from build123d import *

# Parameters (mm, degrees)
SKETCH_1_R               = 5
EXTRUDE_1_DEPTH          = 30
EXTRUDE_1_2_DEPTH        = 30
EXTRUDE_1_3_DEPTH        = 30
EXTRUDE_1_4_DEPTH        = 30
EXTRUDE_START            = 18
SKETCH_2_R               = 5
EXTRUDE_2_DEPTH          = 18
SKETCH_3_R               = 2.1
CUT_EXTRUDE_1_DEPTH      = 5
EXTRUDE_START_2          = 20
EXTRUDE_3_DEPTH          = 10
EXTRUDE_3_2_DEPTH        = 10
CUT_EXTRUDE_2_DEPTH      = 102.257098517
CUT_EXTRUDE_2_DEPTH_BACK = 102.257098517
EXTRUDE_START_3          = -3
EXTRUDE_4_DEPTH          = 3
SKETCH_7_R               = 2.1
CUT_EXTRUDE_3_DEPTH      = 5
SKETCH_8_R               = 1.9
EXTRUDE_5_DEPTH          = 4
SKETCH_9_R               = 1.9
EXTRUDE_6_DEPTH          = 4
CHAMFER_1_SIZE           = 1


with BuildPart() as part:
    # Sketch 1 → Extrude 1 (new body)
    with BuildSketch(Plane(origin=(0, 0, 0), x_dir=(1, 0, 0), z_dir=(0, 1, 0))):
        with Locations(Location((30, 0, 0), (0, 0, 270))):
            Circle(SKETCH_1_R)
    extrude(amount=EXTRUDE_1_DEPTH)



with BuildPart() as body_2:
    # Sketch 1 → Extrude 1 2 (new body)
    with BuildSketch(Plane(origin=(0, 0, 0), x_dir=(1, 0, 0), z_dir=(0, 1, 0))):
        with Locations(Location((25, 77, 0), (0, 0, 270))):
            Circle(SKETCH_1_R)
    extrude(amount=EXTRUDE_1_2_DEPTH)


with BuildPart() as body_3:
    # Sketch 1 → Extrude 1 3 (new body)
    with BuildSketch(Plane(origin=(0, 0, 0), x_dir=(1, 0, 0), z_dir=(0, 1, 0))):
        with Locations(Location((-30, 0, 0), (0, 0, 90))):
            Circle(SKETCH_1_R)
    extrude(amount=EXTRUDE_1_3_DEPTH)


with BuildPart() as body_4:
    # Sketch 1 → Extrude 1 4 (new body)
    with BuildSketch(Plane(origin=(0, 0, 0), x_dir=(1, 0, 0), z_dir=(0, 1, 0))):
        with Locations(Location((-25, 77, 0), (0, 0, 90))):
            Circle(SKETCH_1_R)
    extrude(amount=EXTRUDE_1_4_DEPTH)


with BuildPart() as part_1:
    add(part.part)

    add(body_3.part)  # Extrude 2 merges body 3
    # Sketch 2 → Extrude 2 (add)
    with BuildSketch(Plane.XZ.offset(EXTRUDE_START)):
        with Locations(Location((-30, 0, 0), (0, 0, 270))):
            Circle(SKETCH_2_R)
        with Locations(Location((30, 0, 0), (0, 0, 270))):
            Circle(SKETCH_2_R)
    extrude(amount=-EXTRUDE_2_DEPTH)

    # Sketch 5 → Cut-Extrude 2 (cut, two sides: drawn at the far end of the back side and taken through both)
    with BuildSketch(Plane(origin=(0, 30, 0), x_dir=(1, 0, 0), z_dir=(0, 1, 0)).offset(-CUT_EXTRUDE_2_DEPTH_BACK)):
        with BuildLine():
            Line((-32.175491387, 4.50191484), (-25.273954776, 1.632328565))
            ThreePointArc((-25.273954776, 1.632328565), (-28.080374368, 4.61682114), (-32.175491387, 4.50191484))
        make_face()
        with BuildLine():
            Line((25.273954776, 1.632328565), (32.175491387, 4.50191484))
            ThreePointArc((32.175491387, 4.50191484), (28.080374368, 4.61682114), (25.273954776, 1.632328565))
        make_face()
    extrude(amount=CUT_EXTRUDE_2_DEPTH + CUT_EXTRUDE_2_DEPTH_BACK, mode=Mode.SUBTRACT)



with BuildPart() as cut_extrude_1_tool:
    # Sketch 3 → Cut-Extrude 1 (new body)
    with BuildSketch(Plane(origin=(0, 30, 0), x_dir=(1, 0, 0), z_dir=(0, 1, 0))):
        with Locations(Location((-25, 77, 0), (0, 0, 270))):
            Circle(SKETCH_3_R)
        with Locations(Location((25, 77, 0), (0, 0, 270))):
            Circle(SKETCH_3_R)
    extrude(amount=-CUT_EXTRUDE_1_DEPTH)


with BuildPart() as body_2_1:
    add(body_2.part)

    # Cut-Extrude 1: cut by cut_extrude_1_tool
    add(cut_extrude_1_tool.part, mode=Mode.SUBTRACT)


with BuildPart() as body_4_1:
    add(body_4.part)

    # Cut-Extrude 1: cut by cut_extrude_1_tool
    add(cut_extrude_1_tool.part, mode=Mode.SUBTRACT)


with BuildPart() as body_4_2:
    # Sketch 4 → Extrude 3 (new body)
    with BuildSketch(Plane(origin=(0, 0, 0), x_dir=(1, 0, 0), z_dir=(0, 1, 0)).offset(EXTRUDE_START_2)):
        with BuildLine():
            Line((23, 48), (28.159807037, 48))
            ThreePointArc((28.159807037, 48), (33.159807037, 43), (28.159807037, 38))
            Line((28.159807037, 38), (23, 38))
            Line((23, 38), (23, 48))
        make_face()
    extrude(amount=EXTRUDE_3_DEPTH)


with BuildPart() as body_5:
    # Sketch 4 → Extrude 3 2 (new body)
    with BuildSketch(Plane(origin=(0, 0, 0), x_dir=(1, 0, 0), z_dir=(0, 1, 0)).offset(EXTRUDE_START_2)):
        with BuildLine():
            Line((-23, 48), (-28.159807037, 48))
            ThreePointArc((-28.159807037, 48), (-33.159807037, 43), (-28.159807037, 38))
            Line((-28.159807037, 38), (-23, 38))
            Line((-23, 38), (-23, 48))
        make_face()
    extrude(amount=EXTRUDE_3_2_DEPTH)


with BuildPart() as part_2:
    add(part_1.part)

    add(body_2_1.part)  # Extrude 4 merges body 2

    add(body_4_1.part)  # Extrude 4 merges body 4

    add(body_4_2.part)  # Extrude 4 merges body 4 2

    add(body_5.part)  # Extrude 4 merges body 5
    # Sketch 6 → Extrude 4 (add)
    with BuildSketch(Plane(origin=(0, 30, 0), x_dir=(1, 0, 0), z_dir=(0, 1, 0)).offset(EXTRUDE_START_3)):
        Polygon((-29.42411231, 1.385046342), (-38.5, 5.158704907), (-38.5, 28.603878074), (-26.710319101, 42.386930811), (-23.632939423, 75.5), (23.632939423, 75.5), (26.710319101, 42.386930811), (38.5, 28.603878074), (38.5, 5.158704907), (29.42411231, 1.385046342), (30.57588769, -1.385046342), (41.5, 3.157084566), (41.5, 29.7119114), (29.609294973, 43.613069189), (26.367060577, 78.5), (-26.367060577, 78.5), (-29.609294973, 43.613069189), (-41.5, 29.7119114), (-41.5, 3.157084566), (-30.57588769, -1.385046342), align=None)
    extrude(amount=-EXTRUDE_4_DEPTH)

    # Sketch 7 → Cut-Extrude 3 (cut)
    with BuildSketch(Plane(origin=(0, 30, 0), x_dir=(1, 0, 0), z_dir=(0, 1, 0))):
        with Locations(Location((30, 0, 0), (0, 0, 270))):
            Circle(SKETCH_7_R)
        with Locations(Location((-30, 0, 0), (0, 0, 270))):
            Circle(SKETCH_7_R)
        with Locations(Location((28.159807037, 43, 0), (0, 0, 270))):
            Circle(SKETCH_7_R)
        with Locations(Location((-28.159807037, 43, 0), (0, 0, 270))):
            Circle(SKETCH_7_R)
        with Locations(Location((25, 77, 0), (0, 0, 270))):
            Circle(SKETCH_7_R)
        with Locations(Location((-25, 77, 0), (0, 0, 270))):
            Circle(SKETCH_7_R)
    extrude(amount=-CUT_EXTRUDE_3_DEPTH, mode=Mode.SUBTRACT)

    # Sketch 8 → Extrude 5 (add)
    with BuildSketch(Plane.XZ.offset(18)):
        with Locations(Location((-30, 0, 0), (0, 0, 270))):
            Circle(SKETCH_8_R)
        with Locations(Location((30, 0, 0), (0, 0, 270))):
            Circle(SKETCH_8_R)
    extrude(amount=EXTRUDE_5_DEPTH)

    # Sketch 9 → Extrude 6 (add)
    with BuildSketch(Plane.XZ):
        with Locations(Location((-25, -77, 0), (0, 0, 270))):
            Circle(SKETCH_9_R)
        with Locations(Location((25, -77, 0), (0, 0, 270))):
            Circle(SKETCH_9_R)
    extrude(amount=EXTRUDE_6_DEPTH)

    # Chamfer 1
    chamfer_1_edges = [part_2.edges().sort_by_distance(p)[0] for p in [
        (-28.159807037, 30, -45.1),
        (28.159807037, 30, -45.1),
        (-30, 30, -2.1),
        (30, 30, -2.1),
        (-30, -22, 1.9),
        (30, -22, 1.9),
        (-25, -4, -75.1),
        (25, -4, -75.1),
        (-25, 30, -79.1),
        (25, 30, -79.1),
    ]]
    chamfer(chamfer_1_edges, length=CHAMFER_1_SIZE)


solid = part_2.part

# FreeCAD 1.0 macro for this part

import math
import FreeCAD as App
import Part
import Sketcher

V = App.Vector
Q = App.Units.Quantity


def edges_at(feature, points):
    """Names of the edges that pass closest to the given points."""
    edges = feature.Shape.Edges
    near = lambda p: min(range(len(edges)), key=lambda i: edges[i].distToShape(Part.Vertex(*p))[0])
    return sorted({f"Edge{near(p) + 1}" for p in points})


def add_polygon(sketch, points):
    """Adds a closed chain of lines whose ends are joined by coincident constraints."""
    first, n = sketch.GeometryCount, len(points)
    for a, b in zip(points, points[1:] + points[:1]):
        sketch.addGeometry(Part.LineSegment(App.Vector(*a, 0), App.Vector(*b, 0)), False)
    for i in range(n):
        sketch.addConstraint(Sketcher.Constraint("Coincident", first + i, 2, first + (i + 1) % n, 1))

doc = App.newDocument("Part")
body = doc.addObject("PartDesign::Body", "Body")

sketch1 = doc.addObject("Sketcher::SketchObject", "Sketch")
body.addObject(sketch1)
sketch1.AttachmentSupport = (doc.XZ_Plane, [""])
sketch1.MapMode = "FlatFace"
sketch1.addGeometry(Part.Circle(V(30, 0, 0), V(0, 0, 1), 5), False)
sketch1.addConstraint([
    Sketcher.Constraint("PointOnObject", 0, 3, -1),
    Sketcher.Constraint("Diameter", 0, Q("10 mm")),
    Sketcher.Constraint("DistanceX", -1, 1, 0, 3, Q("30 mm")),
])
pad1 = doc.addObject("PartDesign::Pad", "Pad")
body.addObject(pad1)
pad1.Profile = sketch1
pad1.Length = 30
pad1.Reversed = True
body2 = doc.addObject("PartDesign::Body", "Body001")

sketch2 = doc.addObject("Sketcher::SketchObject", "Sketch001")
body2.addObject(sketch2)
sketch2.AttachmentSupport = (doc.getObject("XZ_Plane001"), [""])
sketch2.MapMode = "FlatFace"
sketch2.addGeometry(Part.Circle(V(25, -77, 0), V(0, 0, 1), 5), False)
sketch2.addConstraint([
    Sketcher.Constraint("Diameter", 0, Q("10 mm")),
    Sketcher.Constraint("DistanceX", -1, 1, 0, 3, Q("25 mm")),
    Sketcher.Constraint("DistanceY", 0, 3, -1, 1, Q("77 mm")),
])
pad2 = doc.addObject("PartDesign::Pad", "Pad001")
body2.addObject(pad2)
pad2.Profile = sketch2
pad2.Length = 30
pad2.Reversed = True
body3 = doc.addObject("PartDesign::Body", "Body002")

sketch3 = doc.addObject("Sketcher::SketchObject", "Sketch002")
body3.addObject(sketch3)
sketch3.AttachmentSupport = (doc.getObject("XZ_Plane002"), [""])
sketch3.MapMode = "FlatFace"
sketch3.addGeometry(Part.Circle(V(-30, 0, 0), V(0, 0, 1), 5), False)
sketch3.addConstraint([
    Sketcher.Constraint("PointOnObject", 0, 3, -1),
    Sketcher.Constraint("Diameter", 0, Q("10 mm")),
    Sketcher.Constraint("DistanceX", 0, 3, -1, 1, Q("30 mm")),
])
pad3 = doc.addObject("PartDesign::Pad", "Pad002")
body3.addObject(pad3)
pad3.Profile = sketch3
pad3.Length = 30
pad3.Reversed = True
body4 = doc.addObject("PartDesign::Body", "Body003")

sketch4 = doc.addObject("Sketcher::SketchObject", "Sketch003")
body4.addObject(sketch4)
sketch4.AttachmentSupport = (doc.getObject("XZ_Plane003"), [""])
sketch4.MapMode = "FlatFace"
sketch4.addGeometry(Part.Circle(V(-25, -77, 0), V(0, 0, 1), 5), False)
sketch4.addConstraint([
    Sketcher.Constraint("Diameter", 0, Q("10 mm")),
    Sketcher.Constraint("DistanceX", 0, 3, -1, 1, Q("25 mm")),
    Sketcher.Constraint("DistanceY", 0, 3, -1, 1, Q("77 mm")),
])
pad4 = doc.addObject("PartDesign::Pad", "Pad003")
body4.addObject(pad4)
pad4.Profile = sketch4
pad4.Length = 30
pad4.Reversed = True
body.AllowCompound = True
doc.recompute()

boolean = doc.addObject("PartDesign::Boolean", "Boolean")
body.addObject(boolean)
boolean.Type = "Fuse"
boolean.addObjects([body3])

sketch5 = doc.addObject("Sketcher::SketchObject", "Sketch004")
body.addObject(sketch5)
sketch5.AttachmentSupport = (doc.XZ_Plane, [""])
sketch5.MapMode = "FlatFace"
sketch5.AttachmentOffset = App.Placement(V(0, 0, 18), App.Rotation())
sketch5.addGeometry([
    Part.Circle(V(-30, 0, 0), V(0, 0, 1), 5),
    Part.Circle(V(30, 0, 0), V(0, 0, 1), 5),
], False)
sketch5.addConstraint([
    Sketcher.Constraint("Equal", 0, 1),
    Sketcher.Constraint("Symmetric", 0, 3, 1, 3, -1, 1),
    Sketcher.Constraint("PointOnObject", 0, 3, -1),
    Sketcher.Constraint("Diameter", 0, Q("10 mm")),
    Sketcher.Constraint("DistanceX", 0, 3, -1, 1, Q("30 mm")),
])
pad5 = doc.addObject("PartDesign::Pad", "Pad004")
body.addObject(pad5)
pad5.Profile = sketch5
pad5.Length = 18
pad5.Reversed = True

sketch6 = doc.addObject("Sketcher::SketchObject", "Sketch005")
body.addObject(sketch6)
sketch6.AttachmentSupport = (doc.XZ_Plane, [""])
sketch6.MapMode = "FlatFace"
sketch6.AttachmentOffset = App.Placement(V(0, 0, -30), App.Rotation())
sketch6.addGeometry([
    Part.LineSegment(V(-32, -5, 0), V(-25, -2, 0)),
    Part.ArcOfCircle(Part.Circle(V(-30, 0, 0), V(0, 0, 1), 5), math.radians(-116), math.radians(-19)),
    Part.LineSegment(V(25, -2, 0), V(32, -5, 0)),
    Part.ArcOfCircle(Part.Circle(V(30, 0, 0), V(0, 0, 1), 5), math.radians(-161), math.radians(-64)),
], False)
sketch6.addConstraint([
    Sketcher.Constraint("Coincident", 0, 1, 1, 1),
    Sketcher.Constraint("Coincident", 1, 2, 0, 2),
    Sketcher.Constraint("Coincident", 2, 1, 3, 1),
    Sketcher.Constraint("Coincident", 3, 2, 2, 2),
    Sketcher.Constraint("Equal", 1, 3),
    Sketcher.Constraint("Symmetric", 1, 3, 3, 3, -1, 1),
    Sketcher.Constraint("Symmetric", 1, 2, 2, 1, -2),
    Sketcher.Constraint("Horizontal", 0, 1, 3, 2),
    Sketcher.Constraint("Radius", 1, Q("5 mm")),
    Sketcher.Constraint("DistanceX", 1, 3, -1, 1, Q("30 mm")),
    Sketcher.Constraint("Distance", 0, Q("7.474338 mm")),
    Sketcher.Constraint("DistanceX", 0, 1, -1, 1, Q("32.175491 mm")),
])
pocket1 = doc.addObject("PartDesign::Pocket", "Pocket")
body.addObject(pocket1)
pocket1.Profile = sketch6
pocket1.Type = "ThroughAll"
pocket1.Midplane = True
body5 = doc.addObject("PartDesign::Body", "Body004")
body5.AllowCompound = True

sketch7 = doc.addObject("Sketcher::SketchObject", "Sketch006")
body5.addObject(sketch7)
sketch7.AttachmentSupport = (doc.getObject("XZ_Plane004"), [""])
sketch7.MapMode = "FlatFace"
sketch7.AttachmentOffset = App.Placement(V(0, 0, -30), App.Rotation())
sketch7.addGeometry([
    Part.Circle(V(-25, -77, 0), V(0, 0, 1), 2.1),
    Part.Circle(V(25, -77, 0), V(0, 0, 1), 2.1),
], False)
sketch7.addConstraint([
    Sketcher.Constraint("Equal", 0, 1),
    Sketcher.Constraint("Symmetric", 0, 3, 1, 3, -2),
    Sketcher.Constraint("Diameter", 0, Q("4.2 mm")),
    Sketcher.Constraint("DistanceX", 0, 3, -1, 1, Q("25 mm")),
    Sketcher.Constraint("DistanceY", 0, 3, -1, 1, Q("77 mm")),
])
pad6 = doc.addObject("PartDesign::Pad", "Pad005")
body5.addObject(pad6)
pad6.Profile = sketch7
pad6.Length = 5
doc.recompute()

body6 = doc.addObject("PartDesign::Body", "Body005")
body6.BaseFeature = body5
boolean2 = doc.addObject("PartDesign::Boolean", "Boolean001")
body2.addObject(boolean2)
boolean2.Type = "Cut"
boolean2.addObjects([body6])
doc.recompute()

boolean3 = doc.addObject("PartDesign::Boolean", "Boolean002")
body4.addObject(boolean3)
boolean3.Type = "Cut"
boolean3.addObjects([body5])
body7 = doc.addObject("PartDesign::Body", "Body006")

sketch8 = doc.addObject("Sketcher::SketchObject", "Sketch007")
body7.addObject(sketch8)
sketch8.AttachmentSupport = (doc.getObject("XZ_Plane006"), [""])
sketch8.MapMode = "FlatFace"
sketch8.AttachmentOffset = App.Placement(V(0, 0, -20), App.Rotation())
sketch8.addGeometry([
    Part.LineSegment(V(28, -48, 0), V(23, -48, 0)),
    Part.LineSegment(V(23, -48, 0), V(23, -38, 0)),
    Part.LineSegment(V(23, -38, 0), V(28, -38, 0)),
    Part.ArcOfCircle(Part.Circle(V(28, -43, 0), V(0, 0, 1), 5), math.radians(-90), math.radians(90)),
], False)
sketch8.addConstraint([
    Sketcher.Constraint("Coincident", 0, 2, 1, 1),
    Sketcher.Constraint("Coincident", 1, 2, 2, 1),
    Sketcher.Constraint("Tangent", 2, 2, 3, 2),
    Sketcher.Constraint("Tangent", 3, 1, 0, 1),
    Sketcher.Constraint("Horizontal", 0),
    Sketcher.Constraint("Vertical", 1),
    Sketcher.Constraint("Horizontal", 2),
    Sketcher.Constraint("Radius", 3, Q("5 mm")),
    Sketcher.Constraint("DistanceY", 3, 3, -1, 1, Q("43 mm")),
    Sketcher.Constraint("DistanceX", -1, 1, 0, 2, Q("23 mm")),
    Sketcher.Constraint("DistanceX", 0, 2, 0, 1, Q("5.159807 mm")),
])
pad7 = doc.addObject("PartDesign::Pad", "Pad006")
body7.addObject(pad7)
pad7.Profile = sketch8
pad7.Length = 10
pad7.Reversed = True
body8 = doc.addObject("PartDesign::Body", "Body007")

sketch9 = doc.addObject("Sketcher::SketchObject", "Sketch008")
body8.addObject(sketch9)
sketch9.AttachmentSupport = (doc.getObject("XZ_Plane007"), [""])
sketch9.MapMode = "FlatFace"
sketch9.AttachmentOffset = App.Placement(V(0, 0, -20), App.Rotation())
sketch9.addGeometry([
    Part.LineSegment(V(-23, -48, 0), V(-28, -48, 0)),
    Part.ArcOfCircle(Part.Circle(V(-28, -43, 0), V(0, 0, 1), 5), math.radians(90), math.radians(270)),
    Part.LineSegment(V(-28, -38, 0), V(-23, -38, 0)),
    Part.LineSegment(V(-23, -38, 0), V(-23, -48, 0)),
], False)
sketch9.addConstraint([
    Sketcher.Constraint("Tangent", 0, 2, 1, 2),
    Sketcher.Constraint("Tangent", 1, 1, 2, 1),
    Sketcher.Constraint("Coincident", 2, 2, 3, 1),
    Sketcher.Constraint("Coincident", 3, 2, 0, 1),
    Sketcher.Constraint("Horizontal", 0),
    Sketcher.Constraint("Horizontal", 2),
    Sketcher.Constraint("Vertical", 3),
    Sketcher.Constraint("Radius", 1, Q("5 mm")),
    Sketcher.Constraint("DistanceY", 1, 3, -1, 1, Q("43 mm")),
    Sketcher.Constraint("DistanceX", 2, 2, -1, 1, Q("23 mm")),
    Sketcher.Constraint("DistanceX", 0, 2, 0, 1, Q("5.159807 mm")),
])
pad8 = doc.addObject("PartDesign::Pad", "Pad007")
body8.addObject(pad8)
pad8.Profile = sketch9
pad8.Length = 10
pad8.Reversed = True
body.AllowCompound = True
doc.recompute()

boolean4 = doc.addObject("PartDesign::Boolean", "Boolean003")
body.addObject(boolean4)
boolean4.Type = "Fuse"
boolean4.addObjects([body2])
doc.recompute()

boolean5 = doc.addObject("PartDesign::Boolean", "Boolean004")
body.addObject(boolean5)
boolean5.Type = "Fuse"
boolean5.addObjects([body4])
doc.recompute()

boolean6 = doc.addObject("PartDesign::Boolean", "Boolean005")
body.addObject(boolean6)
boolean6.Type = "Fuse"
boolean6.addObjects([body7])
doc.recompute()

boolean7 = doc.addObject("PartDesign::Boolean", "Boolean006")
body.addObject(boolean7)
boolean7.Type = "Fuse"
boolean7.addObjects([body8])

sketch10 = doc.addObject("Sketcher::SketchObject", "Sketch009")
body.addObject(sketch10)
sketch10.AttachmentSupport = (doc.XZ_Plane, [""])
sketch10.MapMode = "FlatFace"
sketch10.AttachmentOffset = App.Placement(V(0, 0, -27), App.Rotation())
add_polygon(sketch10, [(-29.4, -1.4), (-38.5, -5.2), (-38.5, -28.6), (-26.7, -42.4), (-23.6, -75.5), (23.6, -75.5), (26.7, -42.4), (38.5, -28.6), (38.5, -5.2), (29.4, -1.4), (30.6, 1.4), (41.5, -3.2), (41.5, -29.7), (29.6, -43.6), (26.4, -78.5), (-26.4, -78.5), (-29.6, -43.6), (-41.5, -29.7), (-41.5, -3.2), (-30.6, 1.4)])
sketch10.addConstraint([
    Sketcher.Constraint("Vertical", 1),
    Sketcher.Constraint("Horizontal", 4),
    Sketcher.Constraint("Vertical", 7),
    Sketcher.Constraint("Vertical", 11),
    Sketcher.Constraint("Horizontal", 14),
    Sketcher.Constraint("Vertical", 17),
    Sketcher.Constraint("Symmetric", 2, 2, 5, 2, -2),
    Sketcher.Constraint("Symmetric", 1, 2, 6, 2, -2),
    Sketcher.Constraint("Symmetric", 12, 2, 15, 2, -2),
    Sketcher.Constraint("Symmetric", 11, 2, 16, 2, -2),
    Sketcher.Constraint("Symmetric", 9, 2, 18, 2, -2),
    Sketcher.Constraint("Symmetric", 8, 2, 19, 2, -2),
    Sketcher.Constraint("Perpendicular", 8, 9),
    Sketcher.Constraint("Perpendicular", 9, 10),
    Sketcher.Constraint("Parallel", 6, 12),
    Sketcher.Constraint("Parallel", 5, 13),
    Sketcher.Constraint("Parallel", 3, 15),
    Sketcher.Constraint("Parallel", 0, 18),
    Sketcher.Constraint("Perpendicular", 18, 19),
    Sketcher.Constraint("Equal", 3, 5),
    Sketcher.Constraint("Distance", 9, Q("3 mm")),
    Sketcher.Constraint("DistanceX", 1, 2, 6, 2, Q("77 mm")),
    Sketcher.Constraint("DistanceX", 7, 2, 10, 2, Q("3 mm")),
    Sketcher.Constraint("DistanceY", 13, 2, 4, 2, Q("3 mm")),
    Sketcher.Constraint("DistanceX", 3, 2, 13, 2, Q("50 mm")),
    Sketcher.Constraint("DistanceY", 3, 2, -1, 1, Q("75.5 mm")),
    Sketcher.Constraint("DistanceX", 4, 1, 4, 2, Q("47.265879 mm")),
    Sketcher.Constraint("Distance", 3, Q("33.255761 mm")),
    Sketcher.Constraint("DistanceY", 1, 2, 1, 1, Q("23.445173 mm")),
    Sketcher.Constraint("DistanceY", 11, 2, 11, 1, Q("26.554827 mm")),
    Sketcher.Constraint("DistanceY", 1, 2, -1, 1, Q("28.603878 mm")),
    Sketcher.Constraint("DistanceX", 2, 2, -1, 1, Q("26.710319 mm")),
    Sketcher.Constraint("DistanceY", 11, 2, -1, 1, Q("29.711911 mm")),
    Sketcher.Constraint("DistanceY", 7, 2, 8, 2, Q("3.773659 mm")),
])
pad9 = doc.addObject("PartDesign::Pad", "Pad008")
body.addObject(pad9)
pad9.Profile = sketch10
pad9.Length = 3

sketch11 = doc.addObject("Sketcher::SketchObject", "Sketch010")
body.addObject(sketch11)
sketch11.AttachmentSupport = (doc.XZ_Plane, [""])
sketch11.MapMode = "FlatFace"
sketch11.AttachmentOffset = App.Placement(V(0, 0, -30), App.Rotation())
sketch11.addGeometry([
    Part.Circle(V(30, 0, 0), V(0, 0, 1), 2.1),
    Part.Circle(V(-30, 0, 0), V(0, 0, 1), 2.1),
    Part.Circle(V(28.2, -43, 0), V(0, 0, 1), 2.1),
    Part.Circle(V(-28.2, -43, 0), V(0, 0, 1), 2.1),
    Part.Circle(V(25, -77, 0), V(0, 0, 1), 2.1),
    Part.Circle(V(-25, -77, 0), V(0, 0, 1), 2.1),
], False)
sketch11.addConstraint([
    Sketcher.Constraint("Equal", 0, 1),
    Sketcher.Constraint("Equal", 1, 2),
    Sketcher.Constraint("Equal", 2, 3),
    Sketcher.Constraint("Equal", 3, 4),
    Sketcher.Constraint("Equal", 4, 5),
    Sketcher.Constraint("Symmetric", 0, 3, 1, 3, -1, 1),
    Sketcher.Constraint("Symmetric", 2, 3, 3, 3, -2),
    Sketcher.Constraint("Symmetric", 4, 3, 5, 3, -2),
    Sketcher.Constraint("PointOnObject", 0, 3, -1),
    Sketcher.Constraint("Diameter", 0, Q("4.2 mm")),
    Sketcher.Constraint("DistanceX", -1, 1, 0, 3, Q("30 mm")),
    Sketcher.Constraint("DistanceY", 2, 3, -1, 1, Q("43 mm")),
    Sketcher.Constraint("DistanceX", -1, 1, 4, 3, Q("25 mm")),
    Sketcher.Constraint("DistanceY", 4, 3, -1, 1, Q("77 mm")),
    Sketcher.Constraint("DistanceX", -1, 1, 2, 3, Q("28.159807 mm")),
])
pocket2 = doc.addObject("PartDesign::Pocket", "Pocket001")
body.addObject(pocket2)
pocket2.Profile = sketch11
pocket2.Length = 5
pocket2.Reversed = True

sketch12 = doc.addObject("Sketcher::SketchObject", "Sketch011")
body.addObject(sketch12)
sketch12.AttachmentSupport = (doc.XZ_Plane, [""])
sketch12.MapMode = "FlatFace"
sketch12.AttachmentOffset = App.Placement(V(0, 0, 18), App.Rotation())
sketch12.addGeometry([
    Part.Circle(V(-30, 0, 0), V(0, 0, 1), 1.9),
    Part.Circle(V(30, 0, 0), V(0, 0, 1), 1.9),
], False)
sketch12.addConstraint([
    Sketcher.Constraint("Equal", 0, 1),
    Sketcher.Constraint("Symmetric", 0, 3, 1, 3, -1, 1),
    Sketcher.Constraint("PointOnObject", 0, 3, -1),
    Sketcher.Constraint("Diameter", 0, Q("3.8 mm")),
    Sketcher.Constraint("DistanceX", 0, 3, -1, 1, Q("30 mm")),
])
pad10 = doc.addObject("PartDesign::Pad", "Pad009")
body.addObject(pad10)
pad10.Profile = sketch12
pad10.Length = 4

sketch13 = doc.addObject("Sketcher::SketchObject", "Sketch012")
body.addObject(sketch13)
sketch13.AttachmentSupport = (doc.XZ_Plane, [""])
sketch13.MapMode = "FlatFace"
sketch13.addGeometry([
    Part.Circle(V(-25, -77, 0), V(0, 0, 1), 1.9),
    Part.Circle(V(25, -77, 0), V(0, 0, 1), 1.9),
], False)
sketch13.addConstraint([
    Sketcher.Constraint("Equal", 0, 1),
    Sketcher.Constraint("Symmetric", 0, 3, 1, 3, -2),
    Sketcher.Constraint("Diameter", 0, Q("3.8 mm")),
    Sketcher.Constraint("DistanceX", 0, 3, -1, 1, Q("25 mm")),
    Sketcher.Constraint("DistanceY", 0, 3, -1, 1, Q("77 mm")),
])
pad11 = doc.addObject("PartDesign::Pad", "Pad010")
body.addObject(pad11)
pad11.Profile = sketch13
pad11.Length = 4
doc.recompute()

chamfer = doc.addObject("PartDesign::Chamfer", "Chamfer")
body.addObject(chamfer)
chamfer.Base = (pad11, edges_at(pad11, [
    (-28.16, 30, -45.1),
    (28.16, 30, -45.1),
    (-30, 30, -2.1),
    (30, 30, -2.1),
    (-30, -22, 1.9),
    (30, -22, 1.9),
    (-25, -4, -75.1),
    (25, -4, -75.1),
    (-25, 30, -79.1),
    (25, 30, -79.1),
]))
chamfer.Size = 1

doc.recompute()
